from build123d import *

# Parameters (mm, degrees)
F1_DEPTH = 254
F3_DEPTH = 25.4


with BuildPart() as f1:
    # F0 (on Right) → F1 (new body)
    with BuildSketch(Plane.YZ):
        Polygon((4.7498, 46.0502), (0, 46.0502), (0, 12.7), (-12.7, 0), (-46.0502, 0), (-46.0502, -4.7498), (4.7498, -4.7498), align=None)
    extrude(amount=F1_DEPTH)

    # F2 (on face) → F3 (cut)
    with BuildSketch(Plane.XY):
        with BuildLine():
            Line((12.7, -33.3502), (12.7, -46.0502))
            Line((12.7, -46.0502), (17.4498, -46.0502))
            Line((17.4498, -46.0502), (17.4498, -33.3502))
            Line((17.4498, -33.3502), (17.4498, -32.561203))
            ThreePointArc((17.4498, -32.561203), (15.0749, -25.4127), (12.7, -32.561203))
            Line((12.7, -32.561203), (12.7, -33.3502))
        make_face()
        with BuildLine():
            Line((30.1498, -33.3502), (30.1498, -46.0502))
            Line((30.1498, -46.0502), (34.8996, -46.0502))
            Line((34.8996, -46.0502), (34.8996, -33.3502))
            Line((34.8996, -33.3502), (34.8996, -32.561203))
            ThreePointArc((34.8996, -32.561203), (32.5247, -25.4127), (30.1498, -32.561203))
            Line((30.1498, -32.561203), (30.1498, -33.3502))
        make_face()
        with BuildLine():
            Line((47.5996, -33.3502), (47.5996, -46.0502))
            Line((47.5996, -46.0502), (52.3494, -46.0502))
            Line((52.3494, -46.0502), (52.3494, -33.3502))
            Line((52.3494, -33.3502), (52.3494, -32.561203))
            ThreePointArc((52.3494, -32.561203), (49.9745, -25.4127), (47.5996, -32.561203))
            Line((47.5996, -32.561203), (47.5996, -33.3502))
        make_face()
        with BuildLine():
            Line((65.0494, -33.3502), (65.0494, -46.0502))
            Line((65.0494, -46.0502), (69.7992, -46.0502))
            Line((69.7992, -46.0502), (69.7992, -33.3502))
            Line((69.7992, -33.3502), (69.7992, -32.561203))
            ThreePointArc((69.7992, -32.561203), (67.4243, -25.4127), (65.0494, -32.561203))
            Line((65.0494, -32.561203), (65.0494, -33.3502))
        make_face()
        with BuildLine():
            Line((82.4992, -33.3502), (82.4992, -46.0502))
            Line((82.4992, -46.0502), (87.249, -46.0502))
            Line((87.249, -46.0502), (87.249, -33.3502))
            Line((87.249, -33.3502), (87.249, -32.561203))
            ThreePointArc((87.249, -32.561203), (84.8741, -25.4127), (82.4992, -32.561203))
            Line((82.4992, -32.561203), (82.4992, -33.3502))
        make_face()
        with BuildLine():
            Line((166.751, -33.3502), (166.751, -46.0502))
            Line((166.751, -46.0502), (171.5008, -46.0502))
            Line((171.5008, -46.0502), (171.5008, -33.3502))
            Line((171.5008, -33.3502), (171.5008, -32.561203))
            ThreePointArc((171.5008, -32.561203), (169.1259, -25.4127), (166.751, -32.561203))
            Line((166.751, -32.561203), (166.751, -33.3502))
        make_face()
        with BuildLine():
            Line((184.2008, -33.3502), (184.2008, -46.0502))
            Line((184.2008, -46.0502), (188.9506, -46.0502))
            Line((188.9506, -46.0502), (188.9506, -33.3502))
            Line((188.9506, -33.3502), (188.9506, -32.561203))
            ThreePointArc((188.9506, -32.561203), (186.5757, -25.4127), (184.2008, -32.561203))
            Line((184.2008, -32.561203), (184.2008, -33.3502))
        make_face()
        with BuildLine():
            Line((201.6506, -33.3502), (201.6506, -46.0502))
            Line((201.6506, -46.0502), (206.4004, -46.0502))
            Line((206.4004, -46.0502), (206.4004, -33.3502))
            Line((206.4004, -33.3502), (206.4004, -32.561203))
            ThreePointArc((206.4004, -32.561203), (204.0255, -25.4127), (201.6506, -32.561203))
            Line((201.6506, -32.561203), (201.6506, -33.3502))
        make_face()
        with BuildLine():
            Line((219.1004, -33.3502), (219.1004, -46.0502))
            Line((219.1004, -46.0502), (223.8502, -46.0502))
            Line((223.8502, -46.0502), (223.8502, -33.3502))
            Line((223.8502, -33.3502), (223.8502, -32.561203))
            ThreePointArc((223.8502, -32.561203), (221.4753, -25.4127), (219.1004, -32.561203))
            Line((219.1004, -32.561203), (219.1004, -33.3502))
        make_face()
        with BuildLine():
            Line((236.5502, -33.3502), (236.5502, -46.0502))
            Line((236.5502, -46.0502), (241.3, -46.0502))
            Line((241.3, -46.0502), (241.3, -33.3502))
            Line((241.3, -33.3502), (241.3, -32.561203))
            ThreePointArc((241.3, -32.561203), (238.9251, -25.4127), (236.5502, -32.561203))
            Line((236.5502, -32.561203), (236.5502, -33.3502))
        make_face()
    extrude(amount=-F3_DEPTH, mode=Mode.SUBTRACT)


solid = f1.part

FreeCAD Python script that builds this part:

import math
import FreeCAD as App
import Part
import Sketcher
Q = App.Units.Quantity

doc = App.newDocument("Part")
body = doc.addObject("PartDesign::Body", "Body")

# Sketch on YZ plane
sketch1 = doc.addObject("Sketcher::SketchObject", "Sketch")
body.addObject(sketch1)
sketch1.AttachmentSupport = (doc.YZ_Plane, [""])
sketch1.MapMode = "FlatFace"
sketch1.addGeometry([
    Part.LineSegment(App.Vector(4.7498, 46.0502, 0), App.Vector(0, 46.0502, 0)),  # 0
    Part.LineSegment(App.Vector(0, 46.0502, 0), App.Vector(0, 12.7, 0)),  # 1
    Part.LineSegment(App.Vector(0, 12.7, 0), App.Vector(-12.7, 0, 0)),  # 2
    Part.LineSegment(App.Vector(-12.7, 0, 0), App.Vector(-46.0502, 0, 0)),  # 3
    Part.LineSegment(App.Vector(-46.0502, 0, 0), App.Vector(-46.0502, -4.7498, 0)),  # 4
    Part.LineSegment(App.Vector(-46.0502, -4.7498, 0), App.Vector(4.7498, -4.7498, 0)),  # 5
    Part.LineSegment(App.Vector(4.7498, -4.7498, 0), App.Vector(4.7498, 46.0502, 0)),  # 6
], False)
sketch1.addConstraint([
    Sketcher.Constraint("Coincident", 0, 2, 1, 1),
    Sketcher.Constraint("Coincident", 1, 2, 2, 1),
    Sketcher.Constraint("Coincident", 2, 2, 3, 1),
    Sketcher.Constraint("Coincident", 3, 2, 4, 1),
    Sketcher.Constraint("Coincident", 4, 2, 5, 1),
    Sketcher.Constraint("Coincident", 5, 2, 6, 1),
    Sketcher.Constraint("Coincident", 6, 2, 0, 1),
    Sketcher.Constraint("Horizontal", 0),
    Sketcher.Constraint("Vertical", 1),
    Sketcher.Constraint("Horizontal", 3),
    Sketcher.Constraint("Vertical", 4),
    Sketcher.Constraint("Horizontal", 5),
    Sketcher.Constraint("Vertical", 6),
    Sketcher.Constraint("PointOnObject", 0, 2, -2),
    Sketcher.Constraint("PointOnObject", 2, 2, -1),
    Sketcher.Constraint("Equal", 3, 1),
    Sketcher.Constraint("Equal", 0, 4),
    Sketcher.Constraint("Equal", 5, 6),
    Sketcher.Constraint("DistanceX", 5, 1, 5, 2, Q("2 in")),
    Sketcher.Constraint("DistanceY", -1, 1, 1, 2, Q("0.5 in")),
    Sketcher.Constraint("DistanceX", 0, 2, 0, 1, Q("0.187 in")),
])
pad1 = doc.addObject("PartDesign::Pad", "Pad")
body.addObject(pad1)
pad1.Profile = sketch1
pad1.Length = Q("10 in")

# Sketch on XY plane
sketch2 = doc.addObject("Sketcher::SketchObject", "Sketch001")
body.addObject(sketch2)
sketch2.AttachmentSupport = (doc.XY_Plane, [""])
sketch2.MapMode = "FlatFace"
sketch2.addGeometry([
    Part.LineSegment(App.Vector(12.7, -46.0502, 0), App.Vector(17.4498, -46.0502, 0)),  # 0
    Part.LineSegment(App.Vector(17.4498, -46.0502, 0), App.Vector(17.4498, -32.561203, 0)),  # 1
    Part.ArcOfCircle(Part.Circle(App.Vector(15.0749, -29.38145, 0), App.Vector(0, 0, 1), 3.96875), math.radians(-53.24461), math.radians(233.24461)),  # 2
    Part.LineSegment(App.Vector(12.7, -32.561203, 0), App.Vector(12.7, -46.0502, 0)),  # 3
    Part.LineSegment(App.Vector(30.1498, -46.0502, 0), App.Vector(34.8996, -46.0502, 0)),  # 4
    Part.LineSegment(App.Vector(34.8996, -46.0502, 0), App.Vector(34.8996, -32.561203, 0)),  # 5
    Part.ArcOfCircle(Part.Circle(App.Vector(32.5247, -29.38145, 0), App.Vector(0, 0, 1), 3.96875), math.radians(-53.24461), math.radians(233.24461)),  # 6
    Part.LineSegment(App.Vector(30.1498, -32.561203, 0), App.Vector(30.1498, -46.0502, 0)),  # 7
    Part.LineSegment(App.Vector(47.5996, -46.0502, 0), App.Vector(52.3494, -46.0502, 0)),  # 8
    Part.LineSegment(App.Vector(52.3494, -46.0502, 0), App.Vector(52.3494, -32.561203, 0)),  # 9
    Part.ArcOfCircle(Part.Circle(App.Vector(49.9745, -29.38145, 0), App.Vector(0, 0, 1), 3.96875), math.radians(-53.24461), math.radians(233.24461)),  # 10
    Part.LineSegment(App.Vector(47.5996, -32.561203, 0), App.Vector(47.5996, -46.0502, 0)),  # 11
    Part.LineSegment(App.Vector(65.0494, -46.0502, 0), App.Vector(69.7992, -46.0502, 0)),  # 12
    Part.LineSegment(App.Vector(69.7992, -46.0502, 0), App.Vector(69.7992, -32.561203, 0)),  # 13
    Part.ArcOfCircle(Part.Circle(App.Vector(67.4243, -29.38145, 0), App.Vector(0, 0, 1), 3.96875), math.radians(-53.24461), math.radians(233.24461)),  # 14
    Part.LineSegment(App.Vector(65.0494, -32.561203, 0), App.Vector(65.0494, -46.0502, 0)),  # 15
    Part.LineSegment(App.Vector(82.4992, -46.0502, 0), App.Vector(87.249, -46.0502, 0)),  # 16
    Part.LineSegment(App.Vector(87.249, -46.0502, 0), App.Vector(87.249, -32.561203, 0)),  # 17
    Part.ArcOfCircle(Part.Circle(App.Vector(84.8741, -29.38145, 0), App.Vector(0, 0, 1), 3.96875), math.radians(-53.24461), math.radians(233.24461)),  # 18
    Part.LineSegment(App.Vector(82.4992, -32.561203, 0), App.Vector(82.4992, -46.0502, 0)),  # 19
    Part.LineSegment(App.Vector(166.751, -46.0502, 0), App.Vector(171.5008, -46.0502, 0)),  # 20
    Part.LineSegment(App.Vector(171.5008, -46.0502, 0), App.Vector(171.5008, -32.561203, 0)),  # 21
    Part.ArcOfCircle(Part.Circle(App.Vector(169.1259, -29.38145, 0), App.Vector(0, 0, 1), 3.96875), math.radians(-53.24461), math.radians(233.24461)),  # 22
    Part.LineSegment(App.Vector(166.751, -32.561203, 0), App.Vector(166.751, -46.0502, 0)),  # 23
    Part.LineSegment(App.Vector(184.2008, -46.0502, 0), App.Vector(188.9506, -46.0502, 0)),  # 24
    Part.LineSegment(App.Vector(188.9506, -46.0502, 0), App.Vector(188.9506, -32.561203, 0)),  # 25
    Part.ArcOfCircle(Part.Circle(App.Vector(186.5757, -29.38145, 0), App.Vector(0, 0, 1), 3.96875), math.radians(-53.24461), math.radians(233.24461)),  # 26
    Part.LineSegment(App.Vector(184.2008, -32.561203, 0), App.Vector(184.2008, -46.0502, 0)),  # 27
    Part.LineSegment(App.Vector(201.6506, -46.0502, 0), App.Vector(206.4004, -46.0502, 0)),  # 28
    Part.LineSegment(App.Vector(206.4004, -46.0502, 0), App.Vector(206.4004, -32.561203, 0)),  # 29
    Part.ArcOfCircle(Part.Circle(App.Vector(204.0255, -29.38145, 0), App.Vector(0, 0, 1), 3.96875), math.radians(-53.24461), math.radians(233.24461)),  # 30
    Part.LineSegment(App.Vector(201.6506, -32.561203, 0), App.Vector(201.6506, -46.0502, 0)),  # 31
    Part.LineSegment(App.Vector(219.1004, -46.0502, 0), App.Vector(223.8502, -46.0502, 0)),  # 32
    Part.LineSegment(App.Vector(223.8502, -46.0502, 0), App.Vector(223.8502, -32.561203, 0)),  # 33
    Part.ArcOfCircle(Part.Circle(App.Vector(221.4753, -29.38145, 0), App.Vector(0, 0, 1), 3.96875), math.radians(-53.24461), math.radians(233.24461)),  # 34
    Part.LineSegment(App.Vector(219.1004, -32.561203, 0), App.Vector(219.1004, -46.0502, 0)),  # 35
    Part.LineSegment(App.Vector(236.5502, -46.0502, 0), App.Vector(241.3, -46.0502, 0)),  # 36
    Part.LineSegment(App.Vector(241.3, -46.0502, 0), App.Vector(241.3, -32.561203, 0)),  # 37
    Part.ArcOfCircle(Part.Circle(App.Vector(238.9251, -29.38145, 0), App.Vector(0, 0, 1), 3.96875), math.radians(-53.24461), math.radians(233.24461)),  # 38
    Part.LineSegment(App.Vector(236.5502, -32.561203, 0), App.Vector(236.5502, -46.0502, 0)),  # 39
], False)
sketch2.addConstraint([
    Sketcher.Constraint("Coincident", 0, 2, 1, 1),
    Sketcher.Constraint("Coincident", 1, 2, 2, 1),
    Sketcher.Constraint("Coincident", 2, 2, 3, 1),
    Sketcher.Constraint("Coincident", 3, 2, 0, 1),
    Sketcher.Constraint("Coincident", 4, 2, 5, 1),
    Sketcher.Constraint("Coincident", 5, 2, 6, 1),
    Sketcher.Constraint("Coincident", 6, 2, 7, 1),
    Sketcher.Constraint("Coincident", 7, 2, 4, 1),
    Sketcher.Constraint("Coincident", 8, 2, 9, 1),
    Sketcher.Constraint("Coincident", 9, 2, 10, 1),
    Sketcher.Constraint("Coincident", 10, 2, 11, 1),
    Sketcher.Constraint("Coincident", 11, 2, 8, 1),
    Sketcher.Constraint("Coincident", 12, 2, 13, 1),
    Sketcher.Constraint("Coincident", 13, 2, 14, 1),
    Sketcher.Constraint("Coincident", 14, 2, 15, 1),
    Sketcher.Constraint("Coincident", 15, 2, 12, 1),
    Sketcher.Constraint("Coincident", 16, 2, 17, 1),
    Sketcher.Constraint("Coincident", 17, 2, 18, 1),
    Sketcher.Constraint("Coincident", 18, 2, 19, 1),
    Sketcher.Constraint("Coincident", 19, 2, 16, 1),
    Sketcher.Constraint("Coincident", 20, 2, 21, 1),
    Sketcher.Constraint("Coincident", 21, 2, 22, 1),
    Sketcher.Constraint("Coincident", 22, 2, 23, 1),
    Sketcher.Constraint("Coincident", 23, 2, 20, 1),
    Sketcher.Constraint("Coincident", 24, 2, 25, 1),
    Sketcher.Constraint("Coincident", 25, 2, 26, 1),
    Sketcher.Constraint("Coincident", 26, 2, 27, 1),
    Sketcher.Constraint("Coincident", 27, 2, 24, 1),
    Sketcher.Constraint("Coincident", 28, 2, 29, 1),
    Sketcher.Constraint("Coincident", 29, 2, 30, 1),
    Sketcher.Constraint("Coincident", 30, 2, 31, 1),
    Sketcher.Constraint("Coincident", 31, 2, 28, 1),
    Sketcher.Constraint("Coincident", 32, 2, 33, 1),
    Sketcher.Constraint("Coincident", 33, 2, 34, 1),
    Sketcher.Constraint("Coincident", 34, 2, 35, 1),
    Sketcher.Constraint("Coincident", 35, 2, 32, 1),
    Sketcher.Constraint("Coincident", 36, 2, 37, 1),
    Sketcher.Constraint("Coincident", 37, 2, 38, 1),
    Sketcher.Constraint("Coincident", 38, 2, 39, 1),
    Sketcher.Constraint("Coincident", 39, 2, 36, 1),
    Sketcher.Constraint("Horizontal", 0),
    Sketcher.Constraint("Vertical", 1),
    Sketcher.Constraint("Vertical", 3),
    Sketcher.Constraint("Horizontal", 4),
    Sketcher.Constraint("Vertical", 5),
    Sketcher.Constraint("Vertical", 7),
    Sketcher.Constraint("Horizontal", 8),
    Sketcher.Constraint("Vertical", 9),
    Sketcher.Constraint("Vertical", 11),
    Sketcher.Constraint("Horizontal", 12),
    Sketcher.Constraint("Vertical", 13),
    Sketcher.Constraint("Vertical", 15),
    Sketcher.Constraint("Horizontal", 16),
    Sketcher.Constraint("Vertical", 17),
    Sketcher.Constraint("Vertical", 19),
    Sketcher.Constraint("Horizontal", 20),
    Sketcher.Constraint("Vertical", 21),
    Sketcher.Constraint("Vertical", 23),
    Sketcher.Constraint("Horizontal", 24),
    Sketcher.Constraint("Vertical", 25),
    Sketcher.Constraint("Vertical", 27),
    Sketcher.Constraint("Horizontal", 28),
    Sketcher.Constraint("Vertical", 29),
    Sketcher.Constraint("Vertical", 31),
    Sketcher.Constraint("Horizontal", 32),
    Sketcher.Constraint("Vertical", 33),
    Sketcher.Constraint("Vertical", 35),
    Sketcher.Constraint("Horizontal", 36),
    Sketcher.Constraint("Vertical", 37),
    Sketcher.Constraint("Vertical", 39),
    Sketcher.Constraint("Equal", 2, 6),
    Sketcher.Constraint("Equal", 6, 10),
    Sketcher.Constraint("Equal", 10, 14),
    Sketcher.Constraint("Equal", 14, 18),
    Sketcher.Constraint("Equal", 18, 22),
    Sketcher.Constraint("Equal", 22, 26),
    Sketcher.Constraint("Equal", 26, 30),
    Sketcher.Constraint("Equal", 30, 34),
    Sketcher.Constraint("Equal", 34, 38),
    Sketcher.Constraint("Horizontal", 2, 3, 6, 3),
    Sketcher.Constraint("Horizontal", 6, 3, 10, 3),
    Sketcher.Constraint("Horizontal", 10, 3, 14, 3),
    Sketcher.Constraint("Horizontal", 14, 3, 18, 3),
    Sketcher.Constraint("Horizontal", 18, 3, 22, 3),
    Sketcher.Constraint("Horizontal", 22, 3, 26, 3),
    Sketcher.Constraint("Horizontal", 26, 3, 30, 3),
    Sketcher.Constraint("Horizontal", 30, 3, 34, 3),
    Sketcher.Constraint("Horizontal", 34, 3, 38, 3),
    Sketcher.Constraint("Horizontal", 1, 2, 2, 2),
    Sketcher.Constraint("Horizontal", 3, 2, 4, 2),
    Sketcher.Constraint("Horizontal", 2, 2, 5, 2),
    Sketcher.Constraint("Horizontal", 5, 2, 6, 2),
    Sketcher.Constraint("Horizontal", 7, 2, 8, 2),
    Sketcher.Constraint("Horizontal", 6, 2, 9, 2),
    Sketcher.Constraint("Horizontal", 9, 2, 10, 2),
    Sketcher.Constraint("Horizontal", 11, 2, 12, 2),
    Sketcher.Constraint("Horizontal", 10, 2, 13, 2),
    Sketcher.Constraint("Horizontal", 13, 2, 14, 2),
    Sketcher.Constraint("Horizontal", 15, 2, 16, 2),
    Sketcher.Constraint("Horizontal", 14, 2, 17, 2),
    Sketcher.Constraint("Horizontal", 17, 2, 18, 2),
    Sketcher.Constraint("Horizontal", 19, 2, 20, 2),
    Sketcher.Constraint("Horizontal", 18, 2, 21, 2),
    Sketcher.Constraint("Horizontal", 21, 2, 22, 2),
    Sketcher.Constraint("Horizontal", 23, 2, 24, 2),
    Sketcher.Constraint("Horizontal", 22, 2, 25, 2),
    Sketcher.Constraint("Horizontal", 25, 2, 26, 2),
    Sketcher.Constraint("Horizontal", 27, 2, 28, 2),
    Sketcher.Constraint("Horizontal", 26, 2, 29, 2),
    Sketcher.Constraint("Horizontal", 29, 2, 30, 2),
    Sketcher.Constraint("Horizontal", 31, 2, 32, 2),
    Sketcher.Constraint("Horizontal", 30, 2, 33, 2),
    Sketcher.Constraint("Horizontal", 33, 2, 34, 2),
    Sketcher.Constraint("Horizontal", 35, 2, 36, 2),
    Sketcher.Constraint("Horizontal", 34, 2, 37, 2),
    Sketcher.Constraint("Horizontal", 37, 2, 38, 2),
    Sketcher.Constraint("Radius", 2, Q("0.15625 in")),
    Sketcher.Constraint("DistanceX", -1, 1, 2, 2, Q("0.5 in")),
    Sketcher.Constraint("DistanceX", -1, 1, 36, 2, Q("9.5 in")),
    Sketcher.Constraint("DistanceX", 1, 2, 6, 2, Q("0.5 in")),
    Sketcher.Constraint("DistanceX", 5, 2, 10, 2, Q("0.5 in")),
    Sketcher.Constraint("DistanceX", 9, 2, 14, 2, Q("0.5 in")),
    Sketcher.Constraint("DistanceX", 13, 2, 18, 2, Q("0.5 in")),
    Sketcher.Constraint("DistanceX", 21, 2, 26, 2, Q("0.5 in")),
    Sketcher.Constraint("DistanceX", 25, 2, 30, 2, Q("0.5 in")),
    Sketcher.Constraint("DistanceX", 29, 2, 34, 2, Q("0.5 in")),
    Sketcher.Constraint("DistanceX", 33, 2, 38, 2, Q("0.5 in")),
    Sketcher.Constraint("DistanceX", 0, 1, 0, 2, Q("0.187 in")),
    Sketcher.Constraint("DistanceY", 0, 2, -1, 1, Q("1.813 in")),
    Sketcher.Constraint("DistanceY", 0, 2, 2, 3, Q("0.65625 in")),
])
pocket1 = doc.addObject("PartDesign::Pocket", "Pocket")
body.addObject(pocket1)
pocket1.Profile = sketch2
pocket1.Length = Q("1 in")

doc.recompute()
